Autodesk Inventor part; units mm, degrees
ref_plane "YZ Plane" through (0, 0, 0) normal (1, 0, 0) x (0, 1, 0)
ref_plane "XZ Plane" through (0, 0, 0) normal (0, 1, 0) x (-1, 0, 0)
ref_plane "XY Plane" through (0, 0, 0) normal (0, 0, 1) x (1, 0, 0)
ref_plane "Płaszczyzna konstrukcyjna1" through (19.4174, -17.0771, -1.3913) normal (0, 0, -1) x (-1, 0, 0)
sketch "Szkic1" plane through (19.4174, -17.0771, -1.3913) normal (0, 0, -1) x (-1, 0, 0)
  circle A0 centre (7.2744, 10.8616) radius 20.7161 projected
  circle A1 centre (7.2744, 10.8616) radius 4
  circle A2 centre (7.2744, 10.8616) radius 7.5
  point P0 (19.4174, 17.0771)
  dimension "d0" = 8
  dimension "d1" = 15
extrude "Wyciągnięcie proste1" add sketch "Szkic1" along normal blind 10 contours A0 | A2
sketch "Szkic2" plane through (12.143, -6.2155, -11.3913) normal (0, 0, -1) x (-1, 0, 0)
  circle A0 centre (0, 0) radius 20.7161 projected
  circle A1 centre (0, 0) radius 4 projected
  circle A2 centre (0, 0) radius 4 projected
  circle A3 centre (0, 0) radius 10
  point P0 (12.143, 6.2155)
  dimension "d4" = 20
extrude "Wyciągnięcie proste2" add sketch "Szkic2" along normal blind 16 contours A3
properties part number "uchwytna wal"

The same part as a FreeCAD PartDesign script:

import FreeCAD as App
import Part
import Sketcher
Q = App.Units.Quantity

doc = App.newDocument("Part")
body = doc.addObject("PartDesign::Body", "Body")

sketch1 = body.newObject("Sketcher::SketchObject", "Sketch")
sketch1.AttachmentSupport = (doc.getObject("XY_Plane"), [""])
sketch1.MapMode = "FlatFace"
sketch1.AttachmentOffset = App.Placement(App.Vector(0, 0, -1.3913), App.Rotation())
sketch1.addGeometry(Part.Circle(App.Vector(12.1, -6.2, 0), App.Vector(0, 0, 1), 20.7), False)
sketch1.addGeometry(Part.Circle(App.Vector(12.1, -6.2, 0), App.Vector(0, 0, 1), 4), False)
sketch1.addConstraint(Sketcher.Constraint("Coincident", 1, 3, 0, 3))
sketch1.addConstraint(Sketcher.Constraint("Diameter", 1, Q("8 mm")))
sketch1.addConstraint(Sketcher.Constraint("Diameter", 0, Q("41.4322 mm")))
sketch1.addConstraint(Sketcher.Constraint("DistanceX", -1, 1, 0, 3, Q("12.143 mm")))
sketch1.addConstraint(Sketcher.Constraint("DistanceY", 0, 3, -1, 1, Q("6.2155 mm")))
pad1 = body.newObject("PartDesign::Pad", "Pad")
pad1.Profile = sketch1
pad1.Length = 10
pad1.Reversed = True

sketch2 = body.newObject("Sketcher::SketchObject", "Sketch001")
sketch2.AttachmentSupport = (doc.getObject("XY_Plane"), [""])
sketch2.MapMode = "FlatFace"
sketch2.AttachmentOffset = App.Placement(App.Vector(0, 0, -11.3913), App.Rotation())
sketch2.addGeometry(Part.Circle(App.Vector(12.1, -6.2, 0), App.Vector(0, 0, 1), 10), False)
sketch2.addGeometry(Part.Circle(App.Vector(12.1, -6.2, 0), App.Vector(0, 0, 1), 4), False)
sketch2.addConstraint(Sketcher.Constraint("Coincident", 1, 3, 0, 3))
sketch2.addConstraint(Sketcher.Constraint("Diameter", 0, Q("20 mm")))
sketch2.addConstraint(Sketcher.Constraint("Diameter", 1, Q("8 mm")))
sketch2.addConstraint(Sketcher.Constraint("DistanceX", -1, 1, 0, 3, Q("12.143 mm")))
sketch2.addConstraint(Sketcher.Constraint("DistanceY", 0, 3, -1, 1, Q("6.2155 mm")))
pad2 = body.newObject("PartDesign::Pad", "Pad001")
pad2.Profile = sketch2
pad2.Length = 16
pad2.Reversed = True

doc.recompute()
